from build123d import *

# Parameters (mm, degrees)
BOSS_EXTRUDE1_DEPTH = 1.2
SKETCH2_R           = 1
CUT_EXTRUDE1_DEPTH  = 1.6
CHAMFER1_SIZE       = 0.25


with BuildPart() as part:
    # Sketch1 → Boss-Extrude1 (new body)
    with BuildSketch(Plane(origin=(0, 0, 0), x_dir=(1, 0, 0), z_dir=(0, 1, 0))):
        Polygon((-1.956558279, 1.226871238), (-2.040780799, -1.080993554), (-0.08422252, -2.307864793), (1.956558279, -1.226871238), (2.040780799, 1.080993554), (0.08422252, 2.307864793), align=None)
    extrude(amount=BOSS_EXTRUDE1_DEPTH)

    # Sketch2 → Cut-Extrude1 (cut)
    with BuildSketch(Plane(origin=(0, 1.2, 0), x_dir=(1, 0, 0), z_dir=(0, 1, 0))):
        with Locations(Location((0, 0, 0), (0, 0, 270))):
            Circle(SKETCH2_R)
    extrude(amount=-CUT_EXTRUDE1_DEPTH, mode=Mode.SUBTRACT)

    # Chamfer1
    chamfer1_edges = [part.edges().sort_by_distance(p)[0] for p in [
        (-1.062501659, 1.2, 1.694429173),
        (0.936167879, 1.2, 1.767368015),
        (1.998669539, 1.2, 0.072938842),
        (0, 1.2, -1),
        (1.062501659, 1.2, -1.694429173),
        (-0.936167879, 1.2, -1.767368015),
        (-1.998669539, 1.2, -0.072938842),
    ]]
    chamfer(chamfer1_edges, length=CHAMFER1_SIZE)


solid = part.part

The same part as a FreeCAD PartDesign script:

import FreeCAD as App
import Part
import Sketcher
from FreeCAD import Vector
Q = App.Units.Quantity


def edges_at(feature, points):
    """Names of the edges that pass closest to the given points."""
    edges = feature.Shape.Edges
    near = lambda p: min(range(len(edges)), key=lambda i: edges[i].distToShape(Part.Vertex(*p))[0])
    return sorted({f"Edge{near(p) + 1}" for p in points})


def add_polygon(sketch, points):
    """Adds a closed chain of lines whose ends are joined by coincident constraints."""
    first, n = sketch.GeometryCount, len(points)
    for a, b in zip(points, points[1:] + points[:1]):
        sketch.addGeometry(Part.LineSegment(App.Vector(*a, 0), App.Vector(*b, 0)), False)
    for i in range(n):
        sketch.addConstraint(Sketcher.Constraint("Coincident", first + i, 2, first + (i + 1) % n, 1))

doc = App.newDocument("Part")
params = doc.addObject("Spreadsheet::Sheet", "Params")
for row, (alias, value) in enumerate([
    ("pad1_length", "1.2 mm"),
    ("sketch2_diameter", "2 mm"),
    ("pocket1_length", "1.6 mm"),
    ("chamfer_size", "0.25 mm"),
], start=1):
    params.set(f"A{row}", alias)
    params.set(f"B{row}", "=" + value)
    params.setAlias(f"B{row}", alias)

body = doc.addObject("PartDesign::Body", "Body")

# Sketch on XZ plane
sketch1 = doc.addObject("Sketcher::SketchObject", "Sketch")
body.addObject(sketch1)
sketch1.AttachmentSupport = (doc.XZ_Plane, [""])
sketch1.MapMode = "FlatFace"
add_polygon(sketch1, [(-2, -1.2), (-2, 1.1), (-0.1, 2.3), (2, 1.2), (2, -1.1), (0.1, -2.3)])  # lines 0-5
sketch1.addConstraint([
    Sketcher.Constraint("Symmetric", 0, 2, 3, 2, -1, 1),
    Sketcher.Constraint("Symmetric", 1, 2, 4, 2, -1, 1),
    Sketcher.Constraint("Symmetric", 2, 2, 5, 2, -1, 1),
    Sketcher.Constraint("Equal", 0, 1),
    Sketcher.Constraint("Equal", 1, 2),
    Sketcher.Constraint("Angle", 0, Q("92.090007 deg")),
    Sketcher.Constraint("Angle", 1, Q("32.090007 deg")),
    Sketcher.Constraint("Angle", 2, Q("-27.909993 deg")),
    Sketcher.Constraint("Distance", 0, Q("2.309401 mm")),
])
pad1 = doc.addObject("PartDesign::Pad", "Pad")
body.addObject(pad1)
pad1.Profile = sketch1
pad1.setExpression("Length", "Params.pad1_length")
pad1.Reversed = True

# Sketch on XZ plane
sketch2 = doc.addObject("Sketcher::SketchObject", "Sketch001")
body.addObject(sketch2)
sketch2.AttachmentSupport = (doc.XZ_Plane, [""])
sketch2.MapMode = "FlatFace"
sketch2.AttachmentOffset = App.Placement(Vector(0, 0, -1.2), App.Rotation())
sketch2.addGeometry(Part.Circle(Vector(0, 0, 0), Vector(0, 0, 1), 1), False)
sketch2.addConstraint([
    Sketcher.Constraint("Coincident", 0, 3, -1, 1),
    Sketcher.Constraint("Diameter", 0, Q("2 mm")),
])
sketch2.setExpression("Constraints[1]", "Params.sketch2_diameter")
pocket1 = doc.addObject("PartDesign::Pocket", "Pocket")
body.addObject(pocket1)
pocket1.Profile = sketch2
pocket1.setExpression("Length", "Params.pocket1_length")
pocket1.Reversed = True
doc.recompute()

chamfer = doc.addObject("PartDesign::Chamfer", "Chamfer")
body.addObject(chamfer)
chamfer.Base = (pocket1, edges_at(pocket1, [
    (-1.063, 1.2, 1.694),
    (0.936, 1.2, 1.767),
    (1.999, 1.2, 0.073),
    (0, 1.2, -1),
    (1.063, 1.2, -1.694),
    (-0.936, 1.2, -1.767),
    (-1.999, 1.2, -0.073),
]))
chamfer.setExpression("Size", "Params.chamfer_size")

doc.recompute()
